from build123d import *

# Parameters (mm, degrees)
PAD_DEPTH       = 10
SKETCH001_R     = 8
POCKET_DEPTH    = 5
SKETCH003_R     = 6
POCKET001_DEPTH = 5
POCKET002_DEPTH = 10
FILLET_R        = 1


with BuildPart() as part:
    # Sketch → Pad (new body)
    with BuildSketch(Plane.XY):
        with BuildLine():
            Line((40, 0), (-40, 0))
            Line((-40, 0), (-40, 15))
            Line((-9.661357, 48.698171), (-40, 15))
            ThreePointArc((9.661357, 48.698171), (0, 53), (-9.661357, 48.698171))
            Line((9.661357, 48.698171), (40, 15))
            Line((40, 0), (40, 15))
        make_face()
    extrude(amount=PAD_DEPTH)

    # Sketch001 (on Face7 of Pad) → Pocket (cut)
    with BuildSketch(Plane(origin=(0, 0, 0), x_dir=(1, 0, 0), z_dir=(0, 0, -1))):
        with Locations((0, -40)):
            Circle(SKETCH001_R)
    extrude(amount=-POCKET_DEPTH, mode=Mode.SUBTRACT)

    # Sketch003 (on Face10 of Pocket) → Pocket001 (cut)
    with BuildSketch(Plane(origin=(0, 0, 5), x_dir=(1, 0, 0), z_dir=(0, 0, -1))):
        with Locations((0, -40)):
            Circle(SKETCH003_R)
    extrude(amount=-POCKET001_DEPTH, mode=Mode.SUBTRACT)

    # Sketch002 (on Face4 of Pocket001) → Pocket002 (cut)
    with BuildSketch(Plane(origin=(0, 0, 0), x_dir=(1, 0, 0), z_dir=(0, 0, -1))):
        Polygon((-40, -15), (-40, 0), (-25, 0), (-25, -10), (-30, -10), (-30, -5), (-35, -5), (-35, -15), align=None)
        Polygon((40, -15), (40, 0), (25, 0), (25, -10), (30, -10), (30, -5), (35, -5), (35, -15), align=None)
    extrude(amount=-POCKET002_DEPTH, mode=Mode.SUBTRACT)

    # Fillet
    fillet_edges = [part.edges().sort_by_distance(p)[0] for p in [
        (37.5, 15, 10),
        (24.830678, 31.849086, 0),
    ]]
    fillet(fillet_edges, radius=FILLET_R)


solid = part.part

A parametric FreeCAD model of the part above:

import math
import FreeCAD as App
import Part
import Sketcher


def edges_at(feature, points):
    """Names of the edges that pass closest to the given points."""
    edges = feature.Shape.Edges
    near = lambda p: min(range(len(edges)), key=lambda i: edges[i].distToShape(Part.Vertex(*p))[0])
    return sorted({f"Edge{near(p) + 1}" for p in points})


def add_polygon(sketch, points):
    """Adds a closed chain of lines whose ends are joined by coincident constraints."""
    first, n = sketch.GeometryCount, len(points)
    for a, b in zip(points, points[1:] + points[:1]):
        sketch.addGeometry(Part.LineSegment(App.Vector(*a, 0), App.Vector(*b, 0)), False)
    for i in range(n):
        sketch.addConstraint(Sketcher.Constraint("Coincident", first + i, 2, first + (i + 1) % n, 1))

doc = App.newDocument("Part")
body = doc.addObject("PartDesign::Body", "Body")

# Sketch on XY plane
sketch1 = body.newObject("Sketcher::SketchObject", "Sketch")
sketch1.AttachmentSupport = (doc.getObject("XY_Plane"), [""])
sketch1.MapMode = "FlatFace"
sketch1.addGeometry(Part.LineSegment(App.Vector(-40, 0, 0), App.Vector(40, 0, 0)), False)
sketch1.addGeometry(Part.LineSegment(App.Vector(40, 0, 0), App.Vector(40, 15, 0)), False)
sketch1.addGeometry(Part.LineSegment(App.Vector(40, 15, 0), App.Vector(9.661357, 48.698171, 0)), False)
sketch1.addGeometry(Part.ArcOfCircle(Part.Circle(App.Vector(0, 40, 0), App.Vector(0, 0, 1), 13), math.radians(41.996875), math.radians(138.003125)), False)
sketch1.addGeometry(Part.LineSegment(App.Vector(-9.661357, 48.698171, 0), App.Vector(-40, 15, 0)), False)
sketch1.addGeometry(Part.LineSegment(App.Vector(-40, 15, 0), App.Vector(-40, 0, 0)), False)
sketch1.addConstraint(Sketcher.Constraint("Coincident", 0, 2, 1, 1))
sketch1.addConstraint(Sketcher.Constraint("Coincident", 1, 2, 2, 1))
sketch1.addConstraint(Sketcher.Constraint("Tangent", 2, 2, 3, 1))
sketch1.addConstraint(Sketcher.Constraint("Tangent", 3, 2, 4, 1))
sketch1.addConstraint(Sketcher.Constraint("Coincident", 4, 2, 5, 1))
sketch1.addConstraint(Sketcher.Constraint("Coincident", 5, 2, 0, 1))
sketch1.addConstraint(Sketcher.Constraint("Horizontal", 0))
sketch1.addConstraint(Sketcher.Constraint("Vertical", 1))
sketch1.addConstraint(Sketcher.Constraint("Vertical", 5))
sketch1.addConstraint(Sketcher.Constraint("Symmetric", 0, 2, 5, 2, -1, 1))
sketch1.addConstraint(Sketcher.Constraint("Symmetric", 2, 2, 3, 2, -2))
sketch1.addConstraint(Sketcher.Constraint("Radius", 3, 13.0))
sketch1.addConstraint(Sketcher.Constraint("DistanceX", 0, 1, 0, 2, 80.0))
sketch1.addConstraint(Sketcher.Constraint("DistanceY", 1, 1, 1, 2, 15.0))
sketch1.addConstraint(Sketcher.Constraint("DistanceY", -1, 1, 3, 3, 40.0))
pad1 = body.newObject("PartDesign::Pad", "Pad")
pad1.Profile = sketch1
pad1.Length = 10

# Sketch on XY plane
sketch2 = body.newObject("Sketcher::SketchObject", "Sketch001")
sketch2.AttachmentSupport = (doc.getObject("XY_Plane"), [""])
sketch2.MapMode = "FlatFace"
sketch2.addGeometry(Part.Circle(App.Vector(0, 40, 0), App.Vector(0, 0, 1), 8), False)
sketch2.addConstraint(Sketcher.Constraint("PointOnObject", 0, 3, -2))
sketch2.addConstraint(Sketcher.Constraint("Diameter", 0, 16.0))
sketch2.addConstraint(Sketcher.Constraint("DistanceY", -1, 1, 0, 3, 40.0))
pocket1 = body.newObject("PartDesign::Pocket", "Pocket")
pocket1.Profile = sketch2
pocket1.Length = 5
pocket1.Reversed = True

# Sketch on XY plane
sketch3 = body.newObject("Sketcher::SketchObject", "Sketch002")
sketch3.AttachmentSupport = (doc.getObject("XY_Plane"), [""])
sketch3.MapMode = "FlatFace"
sketch3.AttachmentOffset = App.Placement(App.Vector(0, 0, 5), App.Rotation())
sketch3.addGeometry(Part.Circle(App.Vector(0, 40, 0), App.Vector(0, 0, 1), 6), False)
sketch3.addConstraint(Sketcher.Constraint("PointOnObject", 0, 3, -2))
sketch3.addConstraint(Sketcher.Constraint("Diameter", 0, 12.0))
sketch3.addConstraint(Sketcher.Constraint("DistanceY", -1, 1, 0, 3, 40.0))
pocket2 = body.newObject("PartDesign::Pocket", "Pocket001")
pocket2.Profile = sketch3
pocket2.Length = 5
pocket2.Reversed = True

# Sketch on XY plane
sketch4 = body.newObject("Sketcher::SketchObject", "Sketch003")
sketch4.AttachmentSupport = (doc.getObject("XY_Plane"), [""])
sketch4.MapMode = "FlatFace"
add_polygon(sketch4, [(-40, 0), (-40, 15), (-35, 15), (-35, 5), (-30, 5), (-30, 10), (-25, 10), (-25, 0)])  # lines 0-7
add_polygon(sketch4, [(40, 15), (40, 0), (25, 0), (25, 10), (30, 10), (30, 5), (35, 5), (35, 15)])  # lines 8-15
sketch4.addConstraint(Sketcher.Constraint("Vertical", 0))
sketch4.addConstraint(Sketcher.Constraint("Horizontal", 1))
sketch4.addConstraint(Sketcher.Constraint("Vertical", 2))
sketch4.addConstraint(Sketcher.Constraint("Horizontal", 3))
sketch4.addConstraint(Sketcher.Constraint("Vertical", 4))
sketch4.addConstraint(Sketcher.Constraint("Horizontal", 5))
sketch4.addConstraint(Sketcher.Constraint("Vertical", 6))
sketch4.addConstraint(Sketcher.Constraint("Horizontal", 7))
sketch4.addConstraint(Sketcher.Constraint("Vertical", 8))
sketch4.addConstraint(Sketcher.Constraint("Horizontal", 9))
sketch4.addConstraint(Sketcher.Constraint("Vertical", 10))
sketch4.addConstraint(Sketcher.Constraint("Horizontal", 11))
sketch4.addConstraint(Sketcher.Constraint("Vertical", 12))
sketch4.addConstraint(Sketcher.Constraint("Horizontal", 13))
sketch4.addConstraint(Sketcher.Constraint("Vertical", 14))
sketch4.addConstraint(Sketcher.Constraint("Horizontal", 15))
sketch4.addConstraint(Sketcher.Constraint("Symmetric", 7, 2, 8, 2, -1, 1))
sketch4.addConstraint(Sketcher.Constraint("Symmetric", 6, 2, 9, 2, -2))
sketch4.addConstraint(Sketcher.Constraint("Symmetric", 4, 2, 11, 2, -2))
sketch4.addConstraint(Sketcher.Constraint("Symmetric", 2, 2, 13, 2, -2))
sketch4.addConstraint(Sketcher.Constraint("Horizontal", 1, 2, 14, 2))
sketch4.addConstraint(Sketcher.Constraint("Equal", 1, 3))
sketch4.addConstraint(Sketcher.Constraint("Equal", 3, 5))
sketch4.addConstraint(Sketcher.Constraint("Equal", 9, 0))
sketch4.addConstraint(Sketcher.Constraint("Equal", 15, 4))
sketch4.addConstraint(Sketcher.Constraint("Equal", 2, 6))
sketch4.addConstraint(Sketcher.Constraint("DistanceX", 1, 1, 1, 2, 5.0))
sketch4.addConstraint(Sketcher.Constraint("DistanceX", 0, 2, -1, 1, 40.0))
pocket3 = body.newObject("PartDesign::Pocket", "Pocket002")
pocket3.Profile = sketch4
pocket3.Length = 10
pocket3.Reversed = True
doc.recompute()

fillet = body.newObject("PartDesign::Fillet", "Fillet")
fillet.Base = (pocket3, edges_at(pocket3, [(37.5, 15, 10), (24.831, 31.849, 0)]))
fillet.Radius = 1

doc.recompute()
